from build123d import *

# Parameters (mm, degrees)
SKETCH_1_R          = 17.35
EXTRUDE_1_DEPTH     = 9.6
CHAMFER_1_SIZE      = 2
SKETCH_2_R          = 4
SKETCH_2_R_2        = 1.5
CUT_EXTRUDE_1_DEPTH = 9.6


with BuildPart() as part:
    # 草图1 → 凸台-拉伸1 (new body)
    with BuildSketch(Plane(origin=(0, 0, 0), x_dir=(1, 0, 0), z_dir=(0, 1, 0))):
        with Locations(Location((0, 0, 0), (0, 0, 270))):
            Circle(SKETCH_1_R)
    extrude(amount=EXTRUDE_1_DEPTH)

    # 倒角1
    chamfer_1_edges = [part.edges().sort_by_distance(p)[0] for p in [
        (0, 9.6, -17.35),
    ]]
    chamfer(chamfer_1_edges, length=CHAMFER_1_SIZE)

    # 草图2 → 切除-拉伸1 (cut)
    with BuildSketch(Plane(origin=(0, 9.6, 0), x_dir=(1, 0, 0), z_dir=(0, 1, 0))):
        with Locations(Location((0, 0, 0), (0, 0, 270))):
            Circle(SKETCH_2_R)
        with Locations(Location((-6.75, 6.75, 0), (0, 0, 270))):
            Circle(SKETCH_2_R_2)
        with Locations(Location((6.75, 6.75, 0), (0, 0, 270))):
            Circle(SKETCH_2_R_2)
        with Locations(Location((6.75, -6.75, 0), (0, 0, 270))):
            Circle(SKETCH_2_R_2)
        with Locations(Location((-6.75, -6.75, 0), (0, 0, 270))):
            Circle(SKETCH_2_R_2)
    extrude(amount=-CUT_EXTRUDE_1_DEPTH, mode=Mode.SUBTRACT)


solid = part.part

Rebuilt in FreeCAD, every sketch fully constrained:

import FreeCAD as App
import Part
import Sketcher

V = App.Vector
Q = App.Units.Quantity


def edges_at(feature, points):
    """Names of the edges that pass closest to the given points."""
    edges = feature.Shape.Edges
    near = lambda p: min(range(len(edges)), key=lambda i: edges[i].distToShape(Part.Vertex(*p))[0])
    return sorted({f"Edge{near(p) + 1}" for p in points})

doc = App.newDocument("Part")
body = doc.addObject("PartDesign::Body", "Body")

sketch1 = body.newObject("Sketcher::SketchObject", "Sketch")
sketch1.AttachmentSupport = (doc.getObject("XZ_Plane"), [""])
sketch1.MapMode = "FlatFace"
sketch1.addGeometry(Part.Circle(V(0, 0, 0), V(0, 0, 1), 17.35), False)
sketch1.addConstraint([
    Sketcher.Constraint("Coincident", 0, 3, -1, 1),
    Sketcher.Constraint("Diameter", 0, Q("34.7 mm")),
])
pad1 = body.newObject("PartDesign::Pad", "Pad")
pad1.Profile = sketch1
pad1.Length = 9.6
pad1.Reversed = True
doc.recompute()

chamfer = body.newObject("PartDesign::Chamfer", "Chamfer")
chamfer.Base = (pad1, edges_at(pad1, [(0, 9.6, -17.35)]))
chamfer.Size = 2

sketch2 = body.newObject("Sketcher::SketchObject", "Sketch001")
sketch2.AttachmentSupport = (doc.getObject("XZ_Plane"), [""])
sketch2.MapMode = "FlatFace"
sketch2.AttachmentOffset = App.Placement(V(0, 0, -9.6), App.Rotation())
sketch2.addGeometry([
    Part.Circle(V(0, 0, 0), V(0, 0, 1), 4),
    Part.Circle(V(-6.75, -6.75, 0), V(0, 0, 1), 1.5),
    Part.Circle(V(6.75, -6.75, 0), V(0, 0, 1), 1.5),
    Part.Circle(V(6.75, 6.75, 0), V(0, 0, 1), 1.5),
    Part.Circle(V(-6.75, 6.75, 0), V(0, 0, 1), 1.5),
], False)
sketch2.addConstraint([
    Sketcher.Constraint("Coincident", 0, 3, -1, 1),
    Sketcher.Constraint("Equal", 1, 2),
    Sketcher.Constraint("Equal", 2, 3),
    Sketcher.Constraint("Equal", 3, 4),
    Sketcher.Constraint("Symmetric", 1, 3, 3, 3, -1, 1),
    Sketcher.Constraint("Symmetric", 2, 3, 4, 3, -1, 1),
    Sketcher.Constraint("Symmetric", 1, 3, 2, 3, -2),
    Sketcher.Constraint("Diameter", 0, Q("8 mm")),
    Sketcher.Constraint("Diameter", 1, Q("3 mm")),
    Sketcher.Constraint("DistanceX", 1, 3, 2, 3, Q("13.5 mm")),
    Sketcher.Constraint("DistanceY", 2, 3, 3, 3, Q("13.5 mm")),
])
pocket1 = body.newObject("PartDesign::Pocket", "Pocket")
pocket1.Profile = sketch2
pocket1.Length = 9.6
pocket1.Reversed = True

doc.recompute()
